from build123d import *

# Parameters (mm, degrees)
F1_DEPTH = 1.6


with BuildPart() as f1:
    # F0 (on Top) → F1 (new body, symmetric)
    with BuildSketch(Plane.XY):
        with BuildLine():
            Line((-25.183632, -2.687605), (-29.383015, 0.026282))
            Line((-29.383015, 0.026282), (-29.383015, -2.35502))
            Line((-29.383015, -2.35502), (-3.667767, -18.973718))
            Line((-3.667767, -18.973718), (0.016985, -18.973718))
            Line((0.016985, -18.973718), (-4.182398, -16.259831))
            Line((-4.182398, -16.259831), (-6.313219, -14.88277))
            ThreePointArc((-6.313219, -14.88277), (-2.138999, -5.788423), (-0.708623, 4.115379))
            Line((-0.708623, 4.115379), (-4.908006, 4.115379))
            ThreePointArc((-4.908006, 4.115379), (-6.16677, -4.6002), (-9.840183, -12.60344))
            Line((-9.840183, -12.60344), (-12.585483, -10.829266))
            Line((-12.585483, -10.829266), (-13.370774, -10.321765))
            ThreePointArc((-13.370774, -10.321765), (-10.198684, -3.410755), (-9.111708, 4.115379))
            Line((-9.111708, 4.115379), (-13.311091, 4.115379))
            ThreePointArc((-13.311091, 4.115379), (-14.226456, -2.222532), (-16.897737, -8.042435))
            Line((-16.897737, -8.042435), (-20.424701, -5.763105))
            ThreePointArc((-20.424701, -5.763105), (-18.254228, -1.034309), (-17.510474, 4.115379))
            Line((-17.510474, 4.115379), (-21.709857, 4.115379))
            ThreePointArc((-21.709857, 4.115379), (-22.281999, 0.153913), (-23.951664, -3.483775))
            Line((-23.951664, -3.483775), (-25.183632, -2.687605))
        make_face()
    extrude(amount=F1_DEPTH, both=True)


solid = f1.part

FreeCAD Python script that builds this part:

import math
import FreeCAD as App
import Part
import Sketcher
Q = App.Units.Quantity

doc = App.newDocument("Part")
params = doc.addObject("Spreadsheet::Sheet", "Params")
for row, (alias, value) in enumerate([
    ("sketch1_length", "5 mm"),
    ("sketch1_length2", "5 mm"),
    ("pad1_length", "3.2 mm"),
], start=1):
    params.set(f"A{row}", alias)
    params.set(f"B{row}", "=" + value)
    params.setAlias(f"B{row}", alias)

body = doc.addObject("PartDesign::Body", "Body")

# Sketch on XY plane
sketch1 = body.newObject("Sketcher::SketchObject", "Sketch")
sketch1.AttachmentSupport = (doc.getObject("XY_Plane"), [""])
sketch1.MapMode = "FlatFace"
sketch1.addGeometry([
    Part.LineSegment(App.Vector(-25.183632, -2.687605, 0), App.Vector(-29.383015, 0.026282, 0)),  # 0
    Part.LineSegment(App.Vector(-29.383015, 0.026282, 0), App.Vector(-29.383015, -2.35502, 0)),  # 1
    Part.LineSegment(App.Vector(-29.383015, -2.35502, 0), App.Vector(-3.667767, -18.973718, 0)),  # 2
    Part.LineSegment(App.Vector(-3.667767, -18.973718, 0), App.Vector(0.016985, -18.973718, 0)),  # 3
    Part.LineSegment(App.Vector(0.016985, -18.973718, 0), App.Vector(-4.182398, -16.259831, 0)),  # 4
    Part.LineSegment(App.Vector(-4.182398, -16.259831, 0), App.Vector(-6.313219, -14.88277, 0)),  # 5
    Part.ArcOfCircle(Part.Circle(App.Vector(-35.710362, 4.11538, 0), App.Vector(0, 0, 1), 35.001739), math.radians(-32.872905), math.radians(-0.000002)),  # 6
    Part.LineSegment(App.Vector(-0.708623, 4.115379, 0), App.Vector(-4.908006, 4.115379, 0)),  # 7
    Part.ArcOfCircle(Part.Circle(App.Vector(-35.710345, 4.115376, 0), App.Vector(0, 0, 1), 30.802339), math.radians(-32.872915), math.radians(0.000006)),  # 8
    Part.LineSegment(App.Vector(-9.840183, -12.60344, 0), App.Vector(-12.585483, -10.829266, 0)),  # 9
    Part.LineSegment(App.Vector(-12.585483, -10.829266, 0), App.Vector(-13.370774, -10.321765, 0)),  # 10
    Part.ArcOfCircle(Part.Circle(App.Vector(-35.710339, 4.115375, 0), App.Vector(0, 0, 1), 26.598631), math.radians(-32.87292), math.radians(0.000009)),  # 11
    Part.LineSegment(App.Vector(-9.111708, 4.115379, 0), App.Vector(-13.311091, 4.115379, 0)),  # 12
    Part.ArcOfCircle(Part.Circle(App.Vector(-35.710355, 4.115379, 0), App.Vector(0, 0, 1), 22.399264), math.radians(-32.872907), math.radians(0.000001)),  # 13
    Part.LineSegment(App.Vector(-16.897737, -8.042435, 0), App.Vector(-20.424701, -5.763105, 0)),  # 14
    Part.ArcOfCircle(Part.Circle(App.Vector(-35.710361, 4.115381, 0), App.Vector(0, 0, 1), 18.199887), math.radians(-32.872904), math.radians(-0.000007)),  # 15
    Part.LineSegment(App.Vector(-17.510474, 4.115379, 0), App.Vector(-21.709857, 4.115379, 0)),  # 16
    Part.ArcOfCircle(Part.Circle(App.Vector(-35.710349, 4.115376, 0), App.Vector(0, 0, 1), 14.000492), math.radians(-32.872914), math.radians(0.000011)),  # 17
    Part.LineSegment(App.Vector(-23.951664, -3.483775, 0), App.Vector(-25.183632, -2.687605, 0)),  # 18
], False)
sketch1.addConstraint([
    Sketcher.Constraint("Coincident", 0, 2, 1, 1),
    Sketcher.Constraint("Coincident", 1, 2, 2, 1),
    Sketcher.Constraint("Coincident", 2, 2, 3, 1),
    Sketcher.Constraint("Coincident", 3, 2, 4, 1),
    Sketcher.Constraint("Coincident", 4, 2, 5, 1),
    Sketcher.Constraint("Coincident", 5, 2, 6, 1),
    Sketcher.Constraint("Coincident", 6, 2, 7, 1),
    Sketcher.Constraint("Coincident", 7, 2, 8, 2),
    Sketcher.Constraint("Coincident", 8, 1, 9, 1),
    Sketcher.Constraint("Coincident", 9, 2, 10, 1),
    Sketcher.Constraint("Coincident", 10, 2, 11, 1),
    Sketcher.Constraint("Coincident", 11, 2, 12, 1),
    Sketcher.Constraint("Coincident", 12, 2, 13, 2),
    Sketcher.Constraint("Coincident", 13, 1, 14, 1),
    Sketcher.Constraint("Coincident", 14, 2, 15, 1),
    Sketcher.Constraint("Coincident", 15, 2, 16, 1),
    Sketcher.Constraint("Coincident", 16, 2, 17, 2),
    Sketcher.Constraint("Coincident", 17, 1, 18, 1),
    Sketcher.Constraint("Coincident", 18, 2, 0, 1),
    Sketcher.Constraint("Vertical", 1),
    Sketcher.Constraint("Horizontal", 3),
    Sketcher.Constraint("Horizontal", 7),
    Sketcher.Constraint("Horizontal", 12),
    Sketcher.Constraint("Horizontal", 16),
    Sketcher.Constraint("Coincident", 11, 3, 8, 3),
    Sketcher.Constraint("Coincident", 13, 3, 6, 3),
    Sketcher.Constraint("Coincident", 15, 3, 6, 3),
    Sketcher.Constraint("Coincident", 17, 3, 8, 3),
    Sketcher.Constraint("Distance", 0, Q("5 mm")),
    Sketcher.Constraint("Distance", 4, Q("5 mm")),
    Sketcher.Constraint("DistanceY", 2, 2, 0, 2, Q("19 mm")),
    Sketcher.Constraint("DistanceX", 1, 2, 3, 2, Q("29.4 mm")),
    Sketcher.Constraint("Radius", 6, Q("35.001739 mm")),
    Sketcher.Constraint("Radius", 8, Q("30.802339 mm")),
    Sketcher.Constraint("Radius", 11, Q("26.598631 mm")),
    Sketcher.Constraint("Radius", 17, Q("14.000492 mm")),
    Sketcher.Constraint("Radius", 13, Q("22.399264 mm")),
    Sketcher.Constraint("Radius", 15, Q("18.199887 mm")),
    Sketcher.Constraint("DistanceX", 3, 1, 3, 2, Q("3.684752 mm")),
    Sketcher.Constraint("DistanceX", 14, 2, -1, 1, Q("20.424701 mm")),
    Sketcher.Constraint("DistanceY", 0, 2, 6, 3, Q("4.089098 mm")),
    Sketcher.Constraint("DistanceY", 1, 2, 13, 3, Q("6.470399 mm")),
    Sketcher.Constraint("DistanceX", 9, 2, 8, 1, Q("2.7453 mm")),
    Sketcher.Constraint("DistanceY", 9, 2, 10, 2, Q("0.507501 mm")),
    Sketcher.Constraint("DistanceY", 1, 2, 16, 2, Q("6.470399 mm")),
    Sketcher.Constraint("DistanceY", 14, 2, 18, 2, Q("3.0755 mm")),
    Sketcher.Constraint("DistanceX", 7, 2, 7, 1, Q("4.199383 mm")),
    Sketcher.Constraint("DistanceX", 6, 3, -1, 1, Q("35.710362 mm")),
    Sketcher.Constraint("DistanceY", -1, 1, 6, 3, Q("4.11538 mm")),
    Sketcher.Constraint("DistanceY", 4, 2, -1, 1, Q("16.259831 mm")),
    Sketcher.Constraint("DistanceX", 5, 2, -1, 1, Q("6.313219 mm")),
    Sketcher.Constraint("DistanceY", -1, 1, 6, 2, Q("4.115379 mm")),
    Sketcher.Constraint("DistanceY", 8, 1, -1, 1, Q("12.60344 mm")),
    Sketcher.Constraint("DistanceY", -1, 1, 11, 2, Q("4.115379 mm")),
    Sketcher.Constraint("DistanceX", 18, 2, -1, 1, Q("25.183632 mm")),
    Sketcher.Constraint("DistanceX", 10, 2, 9, 2, Q("0.785291 mm")),
    Sketcher.Constraint("DistanceY", 10, 2, 13, 1, Q("2.27933 mm")),
    Sketcher.Constraint("DistanceY", 14, 2, 17, 1, Q("2.27933 mm")),
    Sketcher.Constraint("DistanceX", 1, 2, 17, 1, Q("5.431351 mm")),
])
sketch1.setExpression("Constraints[28]", "Params.sketch1_length")
sketch1.setExpression("Constraints[29]", "Params.sketch1_length2")
pad1 = body.newObject("PartDesign::Pad", "Pad")
pad1.Profile = sketch1
pad1.setExpression("Length", "Params.pad1_length")
pad1.Midplane = True

doc.recompute()
